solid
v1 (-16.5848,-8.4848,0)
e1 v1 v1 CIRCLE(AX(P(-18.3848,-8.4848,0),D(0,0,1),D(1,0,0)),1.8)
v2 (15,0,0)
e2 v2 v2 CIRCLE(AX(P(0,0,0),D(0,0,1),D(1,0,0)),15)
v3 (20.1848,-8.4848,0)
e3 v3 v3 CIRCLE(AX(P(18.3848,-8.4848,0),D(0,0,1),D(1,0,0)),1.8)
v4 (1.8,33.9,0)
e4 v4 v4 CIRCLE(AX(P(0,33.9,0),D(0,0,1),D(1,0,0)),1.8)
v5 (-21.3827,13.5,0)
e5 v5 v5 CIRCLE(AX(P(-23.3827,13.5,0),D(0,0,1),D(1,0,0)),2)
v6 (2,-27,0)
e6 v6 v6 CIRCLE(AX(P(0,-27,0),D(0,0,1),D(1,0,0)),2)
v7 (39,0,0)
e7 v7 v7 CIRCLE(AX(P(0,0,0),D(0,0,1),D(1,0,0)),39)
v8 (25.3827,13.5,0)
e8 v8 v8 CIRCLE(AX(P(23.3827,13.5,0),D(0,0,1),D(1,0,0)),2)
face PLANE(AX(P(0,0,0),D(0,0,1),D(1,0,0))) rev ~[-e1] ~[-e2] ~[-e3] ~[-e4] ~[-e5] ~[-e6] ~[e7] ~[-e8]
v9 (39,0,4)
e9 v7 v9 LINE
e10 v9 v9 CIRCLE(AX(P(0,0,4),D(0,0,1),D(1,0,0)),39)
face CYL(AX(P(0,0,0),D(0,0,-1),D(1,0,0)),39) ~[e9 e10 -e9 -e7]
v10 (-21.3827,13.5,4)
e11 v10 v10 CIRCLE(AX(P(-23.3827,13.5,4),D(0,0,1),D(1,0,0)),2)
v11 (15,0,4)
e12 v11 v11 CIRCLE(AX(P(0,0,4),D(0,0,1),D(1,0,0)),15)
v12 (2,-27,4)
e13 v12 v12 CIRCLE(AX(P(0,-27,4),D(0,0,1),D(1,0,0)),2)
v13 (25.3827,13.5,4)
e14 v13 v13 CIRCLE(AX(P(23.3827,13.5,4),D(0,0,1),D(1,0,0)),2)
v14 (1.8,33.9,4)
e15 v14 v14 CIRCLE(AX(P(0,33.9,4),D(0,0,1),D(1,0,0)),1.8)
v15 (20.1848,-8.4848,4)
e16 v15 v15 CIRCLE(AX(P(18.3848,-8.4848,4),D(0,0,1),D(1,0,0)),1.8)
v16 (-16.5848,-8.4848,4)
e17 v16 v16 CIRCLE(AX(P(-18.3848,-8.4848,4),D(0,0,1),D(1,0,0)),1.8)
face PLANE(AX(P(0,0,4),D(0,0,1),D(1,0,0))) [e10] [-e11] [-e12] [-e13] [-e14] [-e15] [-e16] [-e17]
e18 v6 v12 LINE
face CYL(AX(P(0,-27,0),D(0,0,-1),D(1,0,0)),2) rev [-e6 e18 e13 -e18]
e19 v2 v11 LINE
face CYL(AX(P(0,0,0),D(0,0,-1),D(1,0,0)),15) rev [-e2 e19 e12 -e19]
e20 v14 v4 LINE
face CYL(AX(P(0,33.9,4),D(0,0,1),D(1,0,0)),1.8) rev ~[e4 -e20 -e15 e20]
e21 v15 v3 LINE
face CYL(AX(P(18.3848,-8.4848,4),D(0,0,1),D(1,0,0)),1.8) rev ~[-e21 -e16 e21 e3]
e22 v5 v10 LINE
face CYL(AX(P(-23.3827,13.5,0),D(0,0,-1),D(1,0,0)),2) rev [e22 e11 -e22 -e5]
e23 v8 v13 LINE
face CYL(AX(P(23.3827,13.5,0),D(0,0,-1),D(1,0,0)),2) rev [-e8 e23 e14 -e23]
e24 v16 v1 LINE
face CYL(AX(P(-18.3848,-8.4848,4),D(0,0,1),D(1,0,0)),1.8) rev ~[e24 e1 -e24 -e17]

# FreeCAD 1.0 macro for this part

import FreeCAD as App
import Part
import Sketcher

V = App.Vector

doc = App.newDocument("Part")
body = doc.addObject("PartDesign::Body", "Body")

# Sketch on XY plane
sketch1 = body.newObject("Sketcher::SketchObject", "Sketch")
sketch1.AttachmentSupport = (doc.getObject("XY_Plane"), [""])
sketch1.MapMode = "FlatFace"
sketch1.addGeometry([
    Part.Circle(V(0, 0, 0), V(0, 0, 1), 39),  # 0
    Part.Circle(V(0, -27, 0), V(0, 0, 1), 2),  # 1
    Part.Circle(V(-23.4, 13.5, 0), V(0, 0, 1), 2),  # 2
    Part.Circle(V(0, 0, 0), V(0, 0, 1), 15),  # 3
    Part.Circle(V(23.4, 13.5, 0), V(0, 0, 1), 2),  # 4
], False)
sketch1.addConstraint([
    Sketcher.Constraint("Coincident", 0, 3, -1, 1),
    Sketcher.Constraint("Coincident", 3, 3, -1, 1),
    Sketcher.Constraint("Equal", 1, 2),
    Sketcher.Constraint("Equal", 2, 4),
    Sketcher.Constraint("Symmetric", 2, 3, 4, 3, -2),
    Sketcher.Constraint("PointOnObject", 1, 3, -2),
    Sketcher.Constraint("Diameter", 0, 78.0),
    Sketcher.Constraint("Diameter", 1, 4.0),
    Sketcher.Constraint("Diameter", 3, 30.0),
    Sketcher.Constraint("DistanceY", 1, 3, -1, 1, 27.0),
    Sketcher.Constraint("DistanceY", -1, 1, 2, 3, 13.5),
    Sketcher.Constraint("DistanceX", 2, 3, -1, 1, 23.3827),
])
pad1 = body.newObject("PartDesign::Pad", "Pad")
pad1.Profile = sketch1
pad1.Length = 4

# Sketch on XY plane
sketch2 = body.newObject("Sketcher::SketchObject", "Sketch001")
sketch2.AttachmentSupport = (doc.getObject("XY_Plane"), [""])
sketch2.MapMode = "FlatFace"
sketch2.AttachmentOffset = App.Placement(V(0, 0, 4), App.Rotation())
sketch2.addGeometry([
    Part.Circle(V(0, 33.9, 0), V(0, 0, 1), 1.8),
    Part.Circle(V(-18.4, -8.5, 0), V(0, 0, 1), 1.8),
    Part.Circle(V(18.4, -8.5, 0), V(0, 0, 1), 1.8),
], False)
sketch2.addConstraint([
    Sketcher.Constraint("Equal", 0, 1),
    Sketcher.Constraint("Equal", 1, 2),
    Sketcher.Constraint("Symmetric", 1, 3, 2, 3, -2),
    Sketcher.Constraint("PointOnObject", 0, 3, -2),
    Sketcher.Constraint("Diameter", 0, 3.6),
    Sketcher.Constraint("DistanceY", -1, 1, 0, 3, 33.9),
    Sketcher.Constraint("DistanceX", 1, 3, -1, 1, 18.3848),
    Sketcher.Constraint("DistanceY", 1, 3, -1, 1, 8.4848),
])
pocket1 = body.newObject("PartDesign::Pocket", "Pocket")
pocket1.Profile = sketch2
pocket1.Length = 4

doc.recompute()
